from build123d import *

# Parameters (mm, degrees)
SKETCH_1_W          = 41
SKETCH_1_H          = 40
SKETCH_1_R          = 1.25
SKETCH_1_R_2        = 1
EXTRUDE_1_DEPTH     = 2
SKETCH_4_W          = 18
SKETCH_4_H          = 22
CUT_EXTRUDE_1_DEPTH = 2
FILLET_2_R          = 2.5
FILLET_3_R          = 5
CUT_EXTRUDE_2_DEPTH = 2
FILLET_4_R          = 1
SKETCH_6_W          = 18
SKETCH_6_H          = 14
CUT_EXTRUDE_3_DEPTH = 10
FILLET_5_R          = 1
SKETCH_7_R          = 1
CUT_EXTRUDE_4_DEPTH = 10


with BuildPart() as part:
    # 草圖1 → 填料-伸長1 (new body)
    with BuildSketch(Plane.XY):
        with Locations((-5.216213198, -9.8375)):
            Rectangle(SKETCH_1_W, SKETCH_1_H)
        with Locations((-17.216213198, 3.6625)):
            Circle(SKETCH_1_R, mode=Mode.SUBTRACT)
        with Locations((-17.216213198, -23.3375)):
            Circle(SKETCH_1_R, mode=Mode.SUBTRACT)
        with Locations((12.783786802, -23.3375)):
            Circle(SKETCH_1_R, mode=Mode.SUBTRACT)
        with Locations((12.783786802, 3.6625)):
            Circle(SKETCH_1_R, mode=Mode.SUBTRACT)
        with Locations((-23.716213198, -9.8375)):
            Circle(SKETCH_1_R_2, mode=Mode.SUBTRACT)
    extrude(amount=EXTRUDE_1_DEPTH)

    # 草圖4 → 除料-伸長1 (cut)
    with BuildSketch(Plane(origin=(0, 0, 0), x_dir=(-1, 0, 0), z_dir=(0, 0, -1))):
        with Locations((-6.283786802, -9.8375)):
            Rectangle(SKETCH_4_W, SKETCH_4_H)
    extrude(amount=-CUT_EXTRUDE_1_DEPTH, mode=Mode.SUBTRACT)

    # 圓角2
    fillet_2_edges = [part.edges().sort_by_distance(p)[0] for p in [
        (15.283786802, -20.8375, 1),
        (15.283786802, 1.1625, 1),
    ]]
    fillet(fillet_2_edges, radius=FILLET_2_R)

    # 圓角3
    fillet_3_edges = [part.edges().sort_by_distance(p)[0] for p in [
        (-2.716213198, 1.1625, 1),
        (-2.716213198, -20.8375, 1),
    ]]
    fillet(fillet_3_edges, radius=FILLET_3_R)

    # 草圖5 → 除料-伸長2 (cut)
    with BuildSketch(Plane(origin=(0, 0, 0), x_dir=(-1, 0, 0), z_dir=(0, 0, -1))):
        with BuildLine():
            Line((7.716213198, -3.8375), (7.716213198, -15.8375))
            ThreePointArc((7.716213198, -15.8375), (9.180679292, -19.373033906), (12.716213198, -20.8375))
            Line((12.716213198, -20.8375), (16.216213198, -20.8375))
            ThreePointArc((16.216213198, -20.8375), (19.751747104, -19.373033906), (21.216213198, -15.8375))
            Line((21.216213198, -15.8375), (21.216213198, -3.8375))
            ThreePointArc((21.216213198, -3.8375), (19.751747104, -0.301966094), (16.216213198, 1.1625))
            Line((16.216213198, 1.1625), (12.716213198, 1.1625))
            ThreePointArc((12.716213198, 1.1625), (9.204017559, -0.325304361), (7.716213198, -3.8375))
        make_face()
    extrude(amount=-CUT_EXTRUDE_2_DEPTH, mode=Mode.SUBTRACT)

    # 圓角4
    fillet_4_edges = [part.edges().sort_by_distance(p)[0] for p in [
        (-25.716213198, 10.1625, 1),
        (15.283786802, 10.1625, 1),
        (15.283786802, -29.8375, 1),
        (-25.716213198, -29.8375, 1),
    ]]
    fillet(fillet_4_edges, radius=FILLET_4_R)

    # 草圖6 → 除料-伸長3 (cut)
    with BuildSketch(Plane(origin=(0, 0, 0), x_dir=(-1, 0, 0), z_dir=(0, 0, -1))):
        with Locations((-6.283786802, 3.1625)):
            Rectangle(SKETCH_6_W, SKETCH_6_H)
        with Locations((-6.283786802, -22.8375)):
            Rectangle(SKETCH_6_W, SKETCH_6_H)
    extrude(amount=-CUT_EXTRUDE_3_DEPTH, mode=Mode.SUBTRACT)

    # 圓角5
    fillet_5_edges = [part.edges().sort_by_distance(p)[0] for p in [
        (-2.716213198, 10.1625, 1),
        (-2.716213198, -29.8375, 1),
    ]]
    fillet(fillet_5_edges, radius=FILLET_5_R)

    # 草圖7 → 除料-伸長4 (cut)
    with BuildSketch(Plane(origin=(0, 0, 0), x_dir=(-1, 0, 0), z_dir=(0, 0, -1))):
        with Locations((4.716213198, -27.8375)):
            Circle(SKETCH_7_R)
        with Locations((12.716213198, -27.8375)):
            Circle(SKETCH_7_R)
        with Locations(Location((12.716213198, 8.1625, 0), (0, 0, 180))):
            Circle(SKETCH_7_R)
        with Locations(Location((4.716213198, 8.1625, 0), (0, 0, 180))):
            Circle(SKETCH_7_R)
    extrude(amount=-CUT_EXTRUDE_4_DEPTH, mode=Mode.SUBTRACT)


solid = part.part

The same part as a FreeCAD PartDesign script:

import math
import FreeCAD as App
import Part
import Sketcher
from FreeCAD import Vector
Q = App.Units.Quantity


def edges_at(feature, points):
    """Names of the edges that pass closest to the given points."""
    edges = feature.Shape.Edges
    near = lambda p: min(range(len(edges)), key=lambda i: edges[i].distToShape(Part.Vertex(*p))[0])
    return sorted({f"Edge{near(p) + 1}" for p in points})

doc = App.newDocument("Part")
body = doc.addObject("PartDesign::Body", "Body")

sketch1 = body.newObject("Sketcher::SketchObject", "Sketch")
sketch1.AttachmentSupport = (doc.getObject("XY_Plane"), [""])
sketch1.MapMode = "FlatFace"
sketch1.addGeometry([
    Part.LineSegment(Vector(-25.716213, 10.1625, 0), Vector(-25.716213, -29.8375, 0)),
    Part.LineSegment(Vector(-25.716213, -29.8375, 0), Vector(15.283787, -29.8375, 0)),
    Part.LineSegment(Vector(15.283787, -29.8375, 0), Vector(15.283787, 10.1625, 0)),
    Part.LineSegment(Vector(15.283787, 10.1625, 0), Vector(-25.716213, 10.1625, 0)),
    Part.Circle(Vector(-17.216213, -23.3375, 0), Vector(0, 0, 1), 1.25),
    Part.Circle(Vector(-23.716213, -9.8375, 0), Vector(0, 0, 1), 1),
    Part.Circle(Vector(12.783787, -23.3375, 0), Vector(0, 0, 1), 1.25),
    Part.Circle(Vector(-17.216213, 3.6625, 0), Vector(0, 0, 1), 1.25),
    Part.Circle(Vector(12.783787, 3.6625, 0), Vector(0, 0, 1), 1.25),
], False)
sketch1.addConstraint([
    Sketcher.Constraint("Coincident", 0, 2, 1, 1),
    Sketcher.Constraint("Coincident", 1, 2, 2, 1),
    Sketcher.Constraint("Coincident", 2, 2, 3, 1),
    Sketcher.Constraint("Coincident", 3, 2, 0, 1),
    Sketcher.Constraint("Vertical", 0),
    Sketcher.Constraint("Horizontal", 1),
    Sketcher.Constraint("Vertical", 2),
    Sketcher.Constraint("Horizontal", 3),
    Sketcher.Constraint("Equal", 4, 6),
    Sketcher.Constraint("Equal", 6, 7),
    Sketcher.Constraint("Equal", 7, 8),
    Sketcher.Constraint("Horizontal", 4, 3, 6, 3),
    Sketcher.Constraint("Horizontal", 7, 3, 8, 3),
    Sketcher.Constraint("Vertical", 4, 3, 7, 3),
    Sketcher.Constraint("Vertical", 6, 3, 8, 3),
    Sketcher.Constraint("Diameter", 5, Q("2 mm")),
    Sketcher.Constraint("Diameter", 4, Q("2.5 mm")),
    Sketcher.Constraint("DistanceX", 1, 1, 1, 2, Q("41 mm")),
    Sketcher.Constraint("DistanceY", 0, 2, 0, 1, Q("40 mm")),
    Sketcher.Constraint("DistanceX", 4, 3, 6, 3, Q("30 mm")),
    Sketcher.Constraint("DistanceY", 4, 3, 7, 3, Q("27 mm")),
    Sketcher.Constraint("DistanceX", 0, 2, 5, 3, Q("2 mm")),
    Sketcher.Constraint("DistanceY", 0, 2, 5, 3, Q("20 mm")),
    Sketcher.Constraint("DistanceX", 5, 3, 4, 3, Q("6.5 mm")),
    Sketcher.Constraint("DistanceY", 4, 3, 5, 3, Q("13.5 mm")),
    Sketcher.Constraint("DistanceY", 4, 3, -1, 1, Q("23.3375 mm")),
    Sketcher.Constraint("DistanceX", 4, 3, -1, 1, Q("17.216213 mm")),
])
pad1 = body.newObject("PartDesign::Pad", "Pad")
pad1.Profile = sketch1
pad1.Length = 2

sketch2 = body.newObject("Sketcher::SketchObject", "Sketch001")
sketch2.AttachmentSupport = (doc.getObject("XY_Plane"), [""])
sketch2.MapMode = "FlatFace"
sketch2.addGeometry([
    Part.LineSegment(Vector(15.283787, 1.1625, 0), Vector(15.283787, -20.8375, 0)),
    Part.LineSegment(Vector(15.283787, -20.8375, 0), Vector(-2.716213, -20.8375, 0)),
    Part.LineSegment(Vector(-2.716213, -20.8375, 0), Vector(-2.716213, 1.1625, 0)),
    Part.LineSegment(Vector(-2.716213, 1.1625, 0), Vector(15.283787, 1.1625, 0)),
], False)
sketch2.addConstraint([
    Sketcher.Constraint("Coincident", 0, 2, 1, 1),
    Sketcher.Constraint("Coincident", 1, 2, 2, 1),
    Sketcher.Constraint("Coincident", 2, 2, 3, 1),
    Sketcher.Constraint("Coincident", 3, 2, 0, 1),
    Sketcher.Constraint("Vertical", 0),
    Sketcher.Constraint("Horizontal", 1),
    Sketcher.Constraint("Vertical", 2),
    Sketcher.Constraint("Horizontal", 3),
    Sketcher.Constraint("DistanceX", 1, 2, 1, 1, Q("18 mm")),
    Sketcher.Constraint("DistanceY", 0, 2, 0, 1, Q("22 mm")),
    Sketcher.Constraint("DistanceY", 0, 2, -1, 1, Q("20.8375 mm")),
    Sketcher.Constraint("DistanceX", -1, 1, 0, 2, Q("15.283787 mm")),
])
pocket1 = body.newObject("PartDesign::Pocket", "Pocket")
pocket1.Profile = sketch2
pocket1.Length = 2
pocket1.Reversed = True
doc.recompute()

fillet = body.newObject("PartDesign::Fillet", "Fillet")
fillet.Base = (pocket1, edges_at(pocket1, [(15.284, -20.837, 1), (15.284, 1.163, 1)]))
fillet.Radius = 2.5
doc.recompute()

fillet2 = body.newObject("PartDesign::Fillet", "Fillet001")
fillet2.Base = (fillet, edges_at(fillet, [(-2.716, 1.163, 1), (-2.716, -20.837, 1)]))
fillet2.Radius = 5

sketch3 = body.newObject("Sketcher::SketchObject", "Sketch002")
sketch3.AttachmentSupport = (doc.getObject("XY_Plane"), [""])
sketch3.MapMode = "FlatFace"
sketch3.addGeometry([
    Part.LineSegment(Vector(-7.716213, -3.8375, 0), Vector(-7.716213, -15.8375, 0)),
    Part.ArcOfCircle(Part.Circle(Vector(-12.716213, -15.8375, 0), Vector(0, 0, 1), 5), math.radians(-90), math.radians(0)),
    Part.LineSegment(Vector(-12.716213, -20.8375, 0), Vector(-16.216213, -20.8375, 0)),
    Part.ArcOfCircle(Part.Circle(Vector(-16.216213, -15.8375, 0), Vector(0, 0, 1), 5), math.radians(180), math.radians(270)),
    Part.LineSegment(Vector(-21.216213, -15.8375, 0), Vector(-21.216213, -3.8375, 0)),
    Part.ArcOfCircle(Part.Circle(Vector(-16.216213, -3.8375, 0), Vector(0, 0, 1), 5), math.radians(90), math.radians(180)),
    Part.LineSegment(Vector(-16.216213, 1.1625, 0), Vector(-12.716213, 1.1625, 0)),
    Part.ArcOfCircle(Part.Circle(Vector(-12.797463, -3.91875, 0), Vector(0, 0, 1), 5.0819), math.radians(0.916091), math.radians(89.083909)),
], False)
sketch3.addConstraint([
    Sketcher.Constraint("Tangent", 0, 2, 1, 2),
    Sketcher.Constraint("Tangent", 1, 1, 2, 1),
    Sketcher.Constraint("Tangent", 2, 2, 3, 2),
    Sketcher.Constraint("Tangent", 3, 1, 4, 1),
    Sketcher.Constraint("Tangent", 4, 2, 5, 2),
    Sketcher.Constraint("Tangent", 5, 1, 6, 1),
    Sketcher.Constraint("Coincident", 6, 2, 7, 2),
    Sketcher.Constraint("Coincident", 7, 1, 0, 1),
    Sketcher.Constraint("Vertical", 0),
    Sketcher.Constraint("Horizontal", 2),
    Sketcher.Constraint("Vertical", 4),
    Sketcher.Constraint("Horizontal", 6),
    Sketcher.Constraint("Equal", 1, 3),
    Sketcher.Constraint("Equal", 3, 5),
    Sketcher.Constraint("Horizontal", 4, 2, 7, 1),
    Sketcher.Constraint("Vertical", 1, 1, 6, 2),
    Sketcher.Constraint("Radius", 1, Q("5 mm")),
    Sketcher.Constraint("DistanceY", 0, 2, 0, 1, Q("12 mm")),
    Sketcher.Constraint("DistanceX", 2, 2, 2, 1, Q("3.5 mm")),
    Sketcher.Constraint("Radius", 7, Q("5.0819 mm")),
    Sketcher.Constraint("DistanceY", 1, 3, -1, 1, Q("15.8375 mm")),
    Sketcher.Constraint("DistanceX", 1, 3, -1, 1, Q("12.716213 mm")),
])
pocket2 = body.newObject("PartDesign::Pocket", "Pocket001")
pocket2.Profile = sketch3
pocket2.Length = 2
pocket2.Reversed = True
doc.recompute()

fillet3 = body.newObject("PartDesign::Fillet", "Fillet002")
fillet3.Base = (pocket2, edges_at(pocket2, [
    (-25.716, 10.162, 1),
    (15.284, 10.162, 1),
    (15.284, -29.837, 1),
    (-25.716, -29.837, 1),
]))
fillet3.Radius = 1

sketch4 = body.newObject("Sketcher::SketchObject", "Sketch003")
sketch4.AttachmentSupport = (doc.getObject("XY_Plane"), [""])
sketch4.MapMode = "FlatFace"
sketch4.addGeometry([
    Part.LineSegment(Vector(15.283787, 10.1625, 0), Vector(15.283787, -3.8375, 0)),
    Part.LineSegment(Vector(15.283787, -3.8375, 0), Vector(-2.716213, -3.8375, 0)),
    Part.LineSegment(Vector(-2.716213, -3.8375, 0), Vector(-2.716213, 10.1625, 0)),
    Part.LineSegment(Vector(-2.716213, 10.1625, 0), Vector(15.283787, 10.1625, 0)),
    Part.LineSegment(Vector(15.283787, -15.8375, 0), Vector(15.283787, -29.8375, 0)),
    Part.LineSegment(Vector(15.283787, -29.8375, 0), Vector(-2.716213, -29.8375, 0)),
    Part.LineSegment(Vector(-2.716213, -29.8375, 0), Vector(-2.716213, -15.8375, 0)),
    Part.LineSegment(Vector(-2.716213, -15.8375, 0), Vector(15.283787, -15.8375, 0)),
], False)
sketch4.addConstraint([
    Sketcher.Constraint("Coincident", 0, 2, 1, 1),
    Sketcher.Constraint("Coincident", 1, 2, 2, 1),
    Sketcher.Constraint("Coincident", 2, 2, 3, 1),
    Sketcher.Constraint("Coincident", 3, 2, 0, 1),
    Sketcher.Constraint("Coincident", 4, 2, 5, 1),
    Sketcher.Constraint("Coincident", 5, 2, 6, 1),
    Sketcher.Constraint("Coincident", 6, 2, 7, 1),
    Sketcher.Constraint("Coincident", 7, 2, 4, 1),
    Sketcher.Constraint("Vertical", 0),
    Sketcher.Constraint("Horizontal", 1),
    Sketcher.Constraint("Vertical", 2),
    Sketcher.Constraint("Horizontal", 3),
    Sketcher.Constraint("Vertical", 4),
    Sketcher.Constraint("Horizontal", 5),
    Sketcher.Constraint("Vertical", 6),
    Sketcher.Constraint("Horizontal", 7),
    Sketcher.Constraint("Vertical", 3, 2, 4, 2),
    Sketcher.Constraint("Vertical", 2, 2, 5, 2),
    Sketcher.Constraint("Equal", 2, 4),
    Sketcher.Constraint("DistanceX", 1, 2, 1, 1, Q("18 mm")),
    Sketcher.Constraint("DistanceY", 0, 2, 0, 1, Q("14 mm")),
    Sketcher.Constraint("DistanceY", 4, 2, 0, 2, Q("26 mm")),
    Sketcher.Constraint("DistanceY", 0, 2, -1, 1, Q("3.8375 mm")),
    Sketcher.Constraint("DistanceX", -1, 1, 0, 2, Q("15.283787 mm")),
])
pocket3 = body.newObject("PartDesign::Pocket", "Pocket002")
pocket3.Profile = sketch4
pocket3.Length = 10
pocket3.Reversed = True
doc.recompute()

fillet4 = body.newObject("PartDesign::Fillet", "Fillet003")
fillet4.Base = (pocket3, edges_at(pocket3, [(-2.716, 10.162, 1), (-2.716, -29.837, 1)]))
fillet4.Radius = 1

sketch5 = body.newObject("Sketcher::SketchObject", "Sketch004")
sketch5.AttachmentSupport = (doc.getObject("XY_Plane"), [""])
sketch5.MapMode = "FlatFace"
sketch5.addGeometry([
    Part.Circle(Vector(-4.716213, -27.8375, 0), Vector(0, 0, 1), 1),
    Part.Circle(Vector(-12.716213, -27.8375, 0), Vector(0, 0, 1), 1),
    Part.Circle(Vector(-12.716213, 8.1625, 0), Vector(0, 0, 1), 1),
    Part.Circle(Vector(-4.716213, 8.1625, 0), Vector(0, 0, 1), 1),
], False)
sketch5.addConstraint([
    Sketcher.Constraint("Equal", 0, 1),
    Sketcher.Constraint("Equal", 1, 2),
    Sketcher.Constraint("Equal", 2, 3),
    Sketcher.Constraint("Horizontal", 0, 3, 1, 3),
    Sketcher.Constraint("Horizontal", 2, 3, 3, 3),
    Sketcher.Constraint("Vertical", 1, 3, 2, 3),
    Sketcher.Constraint("Vertical", 0, 3, 3, 3),
    Sketcher.Constraint("Diameter", 0, Q("2 mm")),
    Sketcher.Constraint("DistanceX", 1, 3, 0, 3, Q("8 mm")),
    Sketcher.Constraint("DistanceY", 1, 3, 2, 3, Q("36 mm")),
    Sketcher.Constraint("DistanceY", 0, 3, -1, 1, Q("27.8375 mm")),
    Sketcher.Constraint("DistanceX", 0, 3, -1, 1, Q("4.716213 mm")),
])
pocket4 = body.newObject("PartDesign::Pocket", "Pocket003")
pocket4.Profile = sketch5
pocket4.Length = 10
pocket4.Reversed = True

doc.recompute()
